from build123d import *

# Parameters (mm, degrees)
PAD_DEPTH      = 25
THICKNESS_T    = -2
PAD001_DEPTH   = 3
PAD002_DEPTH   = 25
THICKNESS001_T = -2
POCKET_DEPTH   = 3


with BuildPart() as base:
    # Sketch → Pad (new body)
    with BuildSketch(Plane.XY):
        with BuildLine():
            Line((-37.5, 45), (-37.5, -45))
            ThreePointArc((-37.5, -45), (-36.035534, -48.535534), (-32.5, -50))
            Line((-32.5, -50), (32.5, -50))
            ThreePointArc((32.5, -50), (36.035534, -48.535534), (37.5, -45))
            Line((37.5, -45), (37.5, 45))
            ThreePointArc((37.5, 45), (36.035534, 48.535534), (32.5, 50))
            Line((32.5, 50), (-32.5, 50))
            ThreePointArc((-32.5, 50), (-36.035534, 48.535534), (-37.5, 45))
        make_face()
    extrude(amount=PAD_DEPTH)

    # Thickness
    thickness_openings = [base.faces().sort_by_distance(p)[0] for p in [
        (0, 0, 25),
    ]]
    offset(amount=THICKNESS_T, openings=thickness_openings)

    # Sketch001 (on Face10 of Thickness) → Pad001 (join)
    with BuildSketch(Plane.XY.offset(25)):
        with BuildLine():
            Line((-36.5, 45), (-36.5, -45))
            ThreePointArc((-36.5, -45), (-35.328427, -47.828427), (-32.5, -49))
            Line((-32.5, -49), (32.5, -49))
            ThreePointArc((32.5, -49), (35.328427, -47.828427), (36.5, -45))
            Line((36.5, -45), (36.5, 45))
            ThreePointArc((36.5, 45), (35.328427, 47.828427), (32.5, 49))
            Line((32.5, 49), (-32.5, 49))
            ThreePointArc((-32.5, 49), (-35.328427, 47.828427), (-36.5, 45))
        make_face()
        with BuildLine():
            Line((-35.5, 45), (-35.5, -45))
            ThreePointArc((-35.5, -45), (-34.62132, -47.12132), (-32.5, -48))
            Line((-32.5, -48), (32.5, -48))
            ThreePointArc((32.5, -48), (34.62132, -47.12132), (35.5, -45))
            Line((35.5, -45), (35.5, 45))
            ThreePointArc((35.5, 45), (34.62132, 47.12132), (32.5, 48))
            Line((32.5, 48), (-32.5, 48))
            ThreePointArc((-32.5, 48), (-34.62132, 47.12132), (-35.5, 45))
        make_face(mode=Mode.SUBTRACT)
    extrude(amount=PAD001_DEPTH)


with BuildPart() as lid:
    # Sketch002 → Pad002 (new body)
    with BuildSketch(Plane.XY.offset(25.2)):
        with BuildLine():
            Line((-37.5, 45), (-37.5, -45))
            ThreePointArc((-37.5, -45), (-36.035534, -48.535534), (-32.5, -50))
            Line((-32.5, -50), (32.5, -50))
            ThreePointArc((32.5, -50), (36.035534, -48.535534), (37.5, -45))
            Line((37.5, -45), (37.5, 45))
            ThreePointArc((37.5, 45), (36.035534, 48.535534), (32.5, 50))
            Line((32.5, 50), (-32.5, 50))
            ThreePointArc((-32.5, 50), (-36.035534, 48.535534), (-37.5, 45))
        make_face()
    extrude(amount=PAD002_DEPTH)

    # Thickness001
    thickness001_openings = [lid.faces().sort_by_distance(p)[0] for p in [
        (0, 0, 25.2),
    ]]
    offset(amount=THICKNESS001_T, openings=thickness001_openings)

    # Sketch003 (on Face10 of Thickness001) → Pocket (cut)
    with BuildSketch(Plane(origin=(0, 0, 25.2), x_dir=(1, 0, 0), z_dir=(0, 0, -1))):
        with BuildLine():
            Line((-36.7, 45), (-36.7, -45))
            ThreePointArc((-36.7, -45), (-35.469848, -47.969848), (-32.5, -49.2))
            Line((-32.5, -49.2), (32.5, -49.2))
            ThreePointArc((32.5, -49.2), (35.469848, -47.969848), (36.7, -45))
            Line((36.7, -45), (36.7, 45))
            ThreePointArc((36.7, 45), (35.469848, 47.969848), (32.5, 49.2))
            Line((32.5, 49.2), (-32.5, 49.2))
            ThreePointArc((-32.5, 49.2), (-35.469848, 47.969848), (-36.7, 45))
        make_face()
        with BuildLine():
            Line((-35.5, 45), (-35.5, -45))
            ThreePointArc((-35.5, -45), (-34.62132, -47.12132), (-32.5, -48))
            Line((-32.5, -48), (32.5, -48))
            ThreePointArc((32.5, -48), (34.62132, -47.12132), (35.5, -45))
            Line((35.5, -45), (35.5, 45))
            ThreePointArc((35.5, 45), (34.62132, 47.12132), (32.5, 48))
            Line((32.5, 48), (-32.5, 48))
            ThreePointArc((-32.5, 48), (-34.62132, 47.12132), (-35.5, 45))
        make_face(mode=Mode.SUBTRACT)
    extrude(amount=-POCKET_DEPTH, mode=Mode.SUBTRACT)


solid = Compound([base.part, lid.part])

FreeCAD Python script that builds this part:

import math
import FreeCAD as App
import Part
import Sketcher
from FreeCAD import Vector
Q = App.Units.Quantity


def faces_at(feature, points):
    """Names of the faces that lie closest to the given points."""
    faces = feature.Shape.Faces
    near = lambda p: min(range(len(faces)), key=lambda i: faces[i].distToShape(Part.Vertex(*p))[0])
    return sorted({f"Face{near(p) + 1}" for p in points})

doc = App.newDocument("Part")
body = doc.addObject("PartDesign::Body", "Body")

sketch1 = body.newObject("Sketcher::SketchObject", "Sketch")
sketch1.AttachmentSupport = (doc.getObject("XY_Plane"), [""])
sketch1.MapMode = "FlatFace"
sketch1.addGeometry([
    Part.LineSegment(Vector(-37.5, 45, 0), Vector(-37.5, -45, 0)),
    Part.ArcOfCircle(Part.Circle(Vector(-32.5, -45, 0), Vector(0, 0, 1), 5), math.radians(180), math.radians(270)),
    Part.LineSegment(Vector(-32.5, -50, 0), Vector(32.5, -50, 0)),
    Part.ArcOfCircle(Part.Circle(Vector(32.5, -45, 0), Vector(0, 0, 1), 5), math.radians(-90), math.radians(0)),
    Part.LineSegment(Vector(37.5, -45, 0), Vector(37.5, 45, 0)),
    Part.ArcOfCircle(Part.Circle(Vector(32.5, 45, 0), Vector(0, 0, 1), 5), math.radians(0), math.radians(90)),
    Part.LineSegment(Vector(32.5, 50, 0), Vector(-32.5, 50, 0)),
    Part.ArcOfCircle(Part.Circle(Vector(-32.5, 45, 0), Vector(0, 0, 1), 5), math.radians(90), math.radians(180)),
], False)
sketch1.addConstraint([
    Sketcher.Constraint("Tangent", 0, 2, 1, 1),
    Sketcher.Constraint("Tangent", 1, 2, 2, 1),
    Sketcher.Constraint("Tangent", 2, 2, 3, 1),
    Sketcher.Constraint("Tangent", 3, 2, 4, 1),
    Sketcher.Constraint("Tangent", 4, 2, 5, 1),
    Sketcher.Constraint("Tangent", 5, 2, 6, 1),
    Sketcher.Constraint("Tangent", 6, 2, 7, 1),
    Sketcher.Constraint("Tangent", 7, 2, 0, 1),
    Sketcher.Constraint("Vertical", 0),
    Sketcher.Constraint("Horizontal", 2),
    Sketcher.Constraint("Vertical", 4),
    Sketcher.Constraint("Horizontal", 6),
    Sketcher.Constraint("Equal", 1, 3),
    Sketcher.Constraint("Equal", 3, 5),
    Sketcher.Constraint("Equal", 5, 7),
    Sketcher.Constraint("Symmetric", 1, 3, 5, 3, -1, 1),
    Sketcher.Constraint("Radius", 1, Q("5 mm")),
    Sketcher.Constraint("DistanceX", 2, 1, 2, 2, Q("65 mm")),
    Sketcher.Constraint("DistanceY", 0, 2, 0, 1, Q("90 mm")),
])
pad1 = body.newObject("PartDesign::Pad", "Pad")
pad1.Profile = sketch1
pad1.Length = 25
doc.recompute()

thickness = body.newObject("PartDesign::Thickness", "Thickness")
thickness.Base = (pad1, faces_at(pad1, [(0, 0, 25)]))
thickness.Value = 2
thickness.Reversed = True
thickness.Join = "Arc"

sketch2 = body.newObject("Sketcher::SketchObject", "Sketch001")
sketch2.AttachmentSupport = (doc.getObject("XY_Plane"), [""])
sketch2.MapMode = "FlatFace"
sketch2.AttachmentOffset = App.Placement(Vector(0, 0, 25), App.Rotation())
sketch2.addGeometry([
    Part.LineSegment(Vector(-36.5, 45, 0), Vector(-36.5, -45, 0)),
    Part.ArcOfCircle(Part.Circle(Vector(-32.5, -45, 0), Vector(0, 0, 1), 4), math.radians(-180), math.radians(-90)),
    Part.LineSegment(Vector(-32.5, -49, 0), Vector(32.5, -49, 0)),
    Part.ArcOfCircle(Part.Circle(Vector(32.5, -45, 0), Vector(0, 0, 1), 4), math.radians(-90), math.radians(0)),
    Part.LineSegment(Vector(36.5, -45, 0), Vector(36.5, 45, 0)),
    Part.ArcOfCircle(Part.Circle(Vector(32.5, 45, 0), Vector(0, 0, 1), 4), math.radians(0), math.radians(90)),
    Part.LineSegment(Vector(32.5, 49, 0), Vector(-32.5, 49, 0)),
    Part.ArcOfCircle(Part.Circle(Vector(-32.5, 45, 0), Vector(0, 0, 1), 4), math.radians(90), math.radians(180)),
    Part.LineSegment(Vector(-35.5, -45, 0), Vector(-35.5, 45, 0)),
    Part.ArcOfCircle(Part.Circle(Vector(-32.5, 45, 0), Vector(0, 0, 1), 3), math.radians(90), math.radians(180)),
    Part.LineSegment(Vector(-32.5, 48, 0), Vector(32.5, 48, 0)),
    Part.ArcOfCircle(Part.Circle(Vector(32.5, 45, 0), Vector(0, 0, 1), 3), math.radians(0), math.radians(90)),
    Part.LineSegment(Vector(35.5, 45, 0), Vector(35.5, -45, 0)),
    Part.ArcOfCircle(Part.Circle(Vector(32.5, -45, 0), Vector(0, 0, 1), 3), math.radians(-90), math.radians(0)),
    Part.LineSegment(Vector(32.5, -48, 0), Vector(-32.5, -48, 0)),
    Part.ArcOfCircle(Part.Circle(Vector(-32.5, -45, 0), Vector(0, 0, 1), 3), math.radians(-180), math.radians(-90)),
], False)
sketch2.addConstraint([
    Sketcher.Constraint("Tangent", 0, 2, 1, 1),
    Sketcher.Constraint("Tangent", 1, 2, 2, 1),
    Sketcher.Constraint("Tangent", 2, 2, 3, 1),
    Sketcher.Constraint("Tangent", 3, 2, 4, 1),
    Sketcher.Constraint("Tangent", 4, 2, 5, 1),
    Sketcher.Constraint("Tangent", 5, 2, 6, 1),
    Sketcher.Constraint("Tangent", 6, 2, 7, 1),
    Sketcher.Constraint("Tangent", 7, 2, 0, 1),
    Sketcher.Constraint("Tangent", 8, 2, 9, 2),
    Sketcher.Constraint("Tangent", 9, 1, 10, 1),
    Sketcher.Constraint("Tangent", 10, 2, 11, 2),
    Sketcher.Constraint("Tangent", 11, 1, 12, 1),
    Sketcher.Constraint("Tangent", 12, 2, 13, 2),
    Sketcher.Constraint("Tangent", 13, 1, 14, 1),
    Sketcher.Constraint("Tangent", 14, 2, 15, 2),
    Sketcher.Constraint("Tangent", 15, 1, 8, 1),
    Sketcher.Constraint("Vertical", 0),
    Sketcher.Constraint("Horizontal", 2),
    Sketcher.Constraint("Vertical", 4),
    Sketcher.Constraint("Horizontal", 6),
    Sketcher.Constraint("Vertical", 8),
    Sketcher.Constraint("Horizontal", 10),
    Sketcher.Constraint("Vertical", 12),
    Sketcher.Constraint("Horizontal", 14),
    Sketcher.Constraint("Coincident", 9, 3, 7, 3),
    Sketcher.Constraint("Coincident", 11, 3, 5, 3),
    Sketcher.Constraint("Coincident", 13, 3, 3, 3),
    Sketcher.Constraint("Equal", 1, 3),
    Sketcher.Constraint("Equal", 3, 5),
    Sketcher.Constraint("Equal", 5, 7),
    Sketcher.Constraint("Equal", 13, 15),
    Sketcher.Constraint("Symmetric", 1, 3, 5, 3, -1, 1),
    Sketcher.Constraint("Radius", 1, Q("4 mm")),
    Sketcher.Constraint("Radius", 9, Q("3.000001 mm")),
    Sketcher.Constraint("DistanceX", 2, 1, 2, 2, Q("65 mm")),
    Sketcher.Constraint("DistanceY", 0, 2, 0, 1, Q("90 mm")),
])
pad2 = body.newObject("PartDesign::Pad", "Pad001")
pad2.Profile = sketch2
pad2.Length = 3
body2 = doc.addObject("PartDesign::Body", "Body001")

sketch3 = body2.newObject("Sketcher::SketchObject", "Sketch002")
sketch3.AttachmentSupport = (doc.getObject("XY_Plane001"), [""])
sketch3.MapMode = "FlatFace"
sketch3.AttachmentOffset = App.Placement(Vector(0, 0, 25.2), App.Rotation())
sketch3.addGeometry([
    Part.LineSegment(Vector(-37.5, 45, 0), Vector(-37.5, -45, 0)),
    Part.ArcOfCircle(Part.Circle(Vector(-32.5, -45, 0), Vector(0, 0, 1), 5), math.radians(180), math.radians(270)),
    Part.LineSegment(Vector(-32.5, -50, 0), Vector(32.5, -50, 0)),
    Part.ArcOfCircle(Part.Circle(Vector(32.5, -45, 0), Vector(0, 0, 1), 5), math.radians(-90), math.radians(0)),
    Part.LineSegment(Vector(37.5, -45, 0), Vector(37.5, 45, 0)),
    Part.ArcOfCircle(Part.Circle(Vector(32.5, 45, 0), Vector(0, 0, 1), 5), math.radians(0), math.radians(90)),
    Part.LineSegment(Vector(32.5, 50, 0), Vector(-32.5, 50, 0)),
    Part.ArcOfCircle(Part.Circle(Vector(-32.5, 45, 0), Vector(0, 0, 1), 5), math.radians(90), math.radians(180)),
], False)
sketch3.addConstraint([
    Sketcher.Constraint("Tangent", 0, 2, 1, 1),
    Sketcher.Constraint("Tangent", 1, 2, 2, 1),
    Sketcher.Constraint("Tangent", 2, 2, 3, 1),
    Sketcher.Constraint("Tangent", 3, 2, 4, 1),
    Sketcher.Constraint("Tangent", 4, 2, 5, 1),
    Sketcher.Constraint("Tangent", 5, 2, 6, 1),
    Sketcher.Constraint("Tangent", 6, 2, 7, 1),
    Sketcher.Constraint("Tangent", 7, 2, 0, 1),
    Sketcher.Constraint("Vertical", 0),
    Sketcher.Constraint("Horizontal", 2),
    Sketcher.Constraint("Vertical", 4),
    Sketcher.Constraint("Horizontal", 6),
    Sketcher.Constraint("Equal", 1, 3),
    Sketcher.Constraint("Equal", 3, 5),
    Sketcher.Constraint("Equal", 5, 7),
    Sketcher.Constraint("Symmetric", 1, 3, 5, 3, -1, 1),
    Sketcher.Constraint("Radius", 1, Q("5 mm")),
    Sketcher.Constraint("DistanceX", 2, 1, 2, 2, Q("65 mm")),
    Sketcher.Constraint("DistanceY", 0, 2, 0, 1, Q("90 mm")),
])
pad3 = body2.newObject("PartDesign::Pad", "Pad002")
pad3.Profile = sketch3
pad3.Length = 25
doc.recompute()

thickness2 = body2.newObject("PartDesign::Thickness", "Thickness001")
thickness2.Base = (pad3, faces_at(pad3, [(0, 0, 25.2)]))
thickness2.Value = 2
thickness2.Reversed = True
thickness2.Join = "Arc"

sketch4 = body2.newObject("Sketcher::SketchObject", "Sketch003")
sketch4.AttachmentSupport = (doc.getObject("XY_Plane001"), [""])
sketch4.MapMode = "FlatFace"
sketch4.AttachmentOffset = App.Placement(Vector(0, 0, 25.2), App.Rotation())
sketch4.addGeometry([
    Part.LineSegment(Vector(-36.7, -45, 0), Vector(-36.7, 45, 0)),
    Part.ArcOfCircle(Part.Circle(Vector(-32.5, 45, 0), Vector(0, 0, 1), 4.2), math.radians(90), math.radians(180)),
    Part.LineSegment(Vector(-32.5, 49.2, 0), Vector(32.5, 49.2, 0)),
    Part.ArcOfCircle(Part.Circle(Vector(32.5, 45, 0), Vector(0, 0, 1), 4.2), math.radians(0), math.radians(90)),
    Part.LineSegment(Vector(36.7, 45, 0), Vector(36.7, -45, 0)),
    Part.ArcOfCircle(Part.Circle(Vector(32.5, -45, 0), Vector(0, 0, 1), 4.2), math.radians(-90), math.radians(0)),
    Part.LineSegment(Vector(32.5, -49.2, 0), Vector(-32.5, -49.2, 0)),
    Part.ArcOfCircle(Part.Circle(Vector(-32.5, -45, 0), Vector(0, 0, 1), 4.2), math.radians(-180), math.radians(-90)),
    Part.LineSegment(Vector(-35.5, 45, 0), Vector(-35.5, -45, 0)),
    Part.ArcOfCircle(Part.Circle(Vector(-32.5, -45, 0), Vector(0, 0, 1), 3), math.radians(-180), math.radians(-90)),
    Part.LineSegment(Vector(-32.5, -48, 0), Vector(32.5, -48, 0)),
    Part.ArcOfCircle(Part.Circle(Vector(32.5, -45, 0), Vector(0, 0, 1), 3), math.radians(-90), math.radians(0)),
    Part.LineSegment(Vector(35.5, -45, 0), Vector(35.5, 45, 0)),
    Part.ArcOfCircle(Part.Circle(Vector(32.5, 45, 0), Vector(0, 0, 1), 3), math.radians(0), math.radians(90)),
    Part.LineSegment(Vector(32.5, 48, 0), Vector(-32.5, 48, 0)),
    Part.ArcOfCircle(Part.Circle(Vector(-32.5, 45, 0), Vector(0, 0, 1), 3), math.radians(90), math.radians(180)),
], False)
sketch4.addConstraint([
    Sketcher.Constraint("Tangent", 0, 2, 1, 2),
    Sketcher.Constraint("Tangent", 1, 1, 2, 1),
    Sketcher.Constraint("Tangent", 2, 2, 3, 2),
    Sketcher.Constraint("Tangent", 3, 1, 4, 1),
    Sketcher.Constraint("Tangent", 4, 2, 5, 2),
    Sketcher.Constraint("Tangent", 5, 1, 6, 1),
    Sketcher.Constraint("Tangent", 6, 2, 7, 2),
    Sketcher.Constraint("Tangent", 7, 1, 0, 1),
    Sketcher.Constraint("Tangent", 8, 2, 9, 1),
    Sketcher.Constraint("Tangent", 9, 2, 10, 1),
    Sketcher.Constraint("Tangent", 10, 2, 11, 1),
    Sketcher.Constraint("Tangent", 11, 2, 12, 1),
    Sketcher.Constraint("Tangent", 12, 2, 13, 1),
    Sketcher.Constraint("Tangent", 13, 2, 14, 1),
    Sketcher.Constraint("Tangent", 14, 2, 15, 1),
    Sketcher.Constraint("Tangent", 15, 2, 8, 1),
    Sketcher.Constraint("Vertical", 0),
    Sketcher.Constraint("Horizontal", 2),
    Sketcher.Constraint("Vertical", 4),
    Sketcher.Constraint("Horizontal", 6),
    Sketcher.Constraint("Vertical", 8),
    Sketcher.Constraint("Horizontal", 10),
    Sketcher.Constraint("Vertical", 12),
    Sketcher.Constraint("Horizontal", 14),
    Sketcher.Constraint("Coincident", 9, 3, 7, 3),
    Sketcher.Constraint("Coincident", 11, 3, 5, 3),
    Sketcher.Constraint("Coincident", 13, 3, 3, 3),
    Sketcher.Constraint("Equal", 1, 3),
    Sketcher.Constraint("Equal", 3, 5),
    Sketcher.Constraint("Equal", 5, 7),
    Sketcher.Constraint("Equal", 13, 15),
    Sketcher.Constraint("Symmetric", 1, 3, 5, 3, -1, 1),
    Sketcher.Constraint("Radius", 9, Q("3.000001 mm")),
    Sketcher.Constraint("Radius", 1, Q("4.200002 mm")),
    Sketcher.Constraint("DistanceX", 2, 1, 2, 2, Q("65 mm")),
    Sketcher.Constraint("DistanceY", 0, 1, 0, 2, Q("90 mm")),
])
pocket1 = body2.newObject("PartDesign::Pocket", "Pocket")
pocket1.Profile = sketch4
pocket1.Length = 3
pocket1.Reversed = True

doc.recompute()
